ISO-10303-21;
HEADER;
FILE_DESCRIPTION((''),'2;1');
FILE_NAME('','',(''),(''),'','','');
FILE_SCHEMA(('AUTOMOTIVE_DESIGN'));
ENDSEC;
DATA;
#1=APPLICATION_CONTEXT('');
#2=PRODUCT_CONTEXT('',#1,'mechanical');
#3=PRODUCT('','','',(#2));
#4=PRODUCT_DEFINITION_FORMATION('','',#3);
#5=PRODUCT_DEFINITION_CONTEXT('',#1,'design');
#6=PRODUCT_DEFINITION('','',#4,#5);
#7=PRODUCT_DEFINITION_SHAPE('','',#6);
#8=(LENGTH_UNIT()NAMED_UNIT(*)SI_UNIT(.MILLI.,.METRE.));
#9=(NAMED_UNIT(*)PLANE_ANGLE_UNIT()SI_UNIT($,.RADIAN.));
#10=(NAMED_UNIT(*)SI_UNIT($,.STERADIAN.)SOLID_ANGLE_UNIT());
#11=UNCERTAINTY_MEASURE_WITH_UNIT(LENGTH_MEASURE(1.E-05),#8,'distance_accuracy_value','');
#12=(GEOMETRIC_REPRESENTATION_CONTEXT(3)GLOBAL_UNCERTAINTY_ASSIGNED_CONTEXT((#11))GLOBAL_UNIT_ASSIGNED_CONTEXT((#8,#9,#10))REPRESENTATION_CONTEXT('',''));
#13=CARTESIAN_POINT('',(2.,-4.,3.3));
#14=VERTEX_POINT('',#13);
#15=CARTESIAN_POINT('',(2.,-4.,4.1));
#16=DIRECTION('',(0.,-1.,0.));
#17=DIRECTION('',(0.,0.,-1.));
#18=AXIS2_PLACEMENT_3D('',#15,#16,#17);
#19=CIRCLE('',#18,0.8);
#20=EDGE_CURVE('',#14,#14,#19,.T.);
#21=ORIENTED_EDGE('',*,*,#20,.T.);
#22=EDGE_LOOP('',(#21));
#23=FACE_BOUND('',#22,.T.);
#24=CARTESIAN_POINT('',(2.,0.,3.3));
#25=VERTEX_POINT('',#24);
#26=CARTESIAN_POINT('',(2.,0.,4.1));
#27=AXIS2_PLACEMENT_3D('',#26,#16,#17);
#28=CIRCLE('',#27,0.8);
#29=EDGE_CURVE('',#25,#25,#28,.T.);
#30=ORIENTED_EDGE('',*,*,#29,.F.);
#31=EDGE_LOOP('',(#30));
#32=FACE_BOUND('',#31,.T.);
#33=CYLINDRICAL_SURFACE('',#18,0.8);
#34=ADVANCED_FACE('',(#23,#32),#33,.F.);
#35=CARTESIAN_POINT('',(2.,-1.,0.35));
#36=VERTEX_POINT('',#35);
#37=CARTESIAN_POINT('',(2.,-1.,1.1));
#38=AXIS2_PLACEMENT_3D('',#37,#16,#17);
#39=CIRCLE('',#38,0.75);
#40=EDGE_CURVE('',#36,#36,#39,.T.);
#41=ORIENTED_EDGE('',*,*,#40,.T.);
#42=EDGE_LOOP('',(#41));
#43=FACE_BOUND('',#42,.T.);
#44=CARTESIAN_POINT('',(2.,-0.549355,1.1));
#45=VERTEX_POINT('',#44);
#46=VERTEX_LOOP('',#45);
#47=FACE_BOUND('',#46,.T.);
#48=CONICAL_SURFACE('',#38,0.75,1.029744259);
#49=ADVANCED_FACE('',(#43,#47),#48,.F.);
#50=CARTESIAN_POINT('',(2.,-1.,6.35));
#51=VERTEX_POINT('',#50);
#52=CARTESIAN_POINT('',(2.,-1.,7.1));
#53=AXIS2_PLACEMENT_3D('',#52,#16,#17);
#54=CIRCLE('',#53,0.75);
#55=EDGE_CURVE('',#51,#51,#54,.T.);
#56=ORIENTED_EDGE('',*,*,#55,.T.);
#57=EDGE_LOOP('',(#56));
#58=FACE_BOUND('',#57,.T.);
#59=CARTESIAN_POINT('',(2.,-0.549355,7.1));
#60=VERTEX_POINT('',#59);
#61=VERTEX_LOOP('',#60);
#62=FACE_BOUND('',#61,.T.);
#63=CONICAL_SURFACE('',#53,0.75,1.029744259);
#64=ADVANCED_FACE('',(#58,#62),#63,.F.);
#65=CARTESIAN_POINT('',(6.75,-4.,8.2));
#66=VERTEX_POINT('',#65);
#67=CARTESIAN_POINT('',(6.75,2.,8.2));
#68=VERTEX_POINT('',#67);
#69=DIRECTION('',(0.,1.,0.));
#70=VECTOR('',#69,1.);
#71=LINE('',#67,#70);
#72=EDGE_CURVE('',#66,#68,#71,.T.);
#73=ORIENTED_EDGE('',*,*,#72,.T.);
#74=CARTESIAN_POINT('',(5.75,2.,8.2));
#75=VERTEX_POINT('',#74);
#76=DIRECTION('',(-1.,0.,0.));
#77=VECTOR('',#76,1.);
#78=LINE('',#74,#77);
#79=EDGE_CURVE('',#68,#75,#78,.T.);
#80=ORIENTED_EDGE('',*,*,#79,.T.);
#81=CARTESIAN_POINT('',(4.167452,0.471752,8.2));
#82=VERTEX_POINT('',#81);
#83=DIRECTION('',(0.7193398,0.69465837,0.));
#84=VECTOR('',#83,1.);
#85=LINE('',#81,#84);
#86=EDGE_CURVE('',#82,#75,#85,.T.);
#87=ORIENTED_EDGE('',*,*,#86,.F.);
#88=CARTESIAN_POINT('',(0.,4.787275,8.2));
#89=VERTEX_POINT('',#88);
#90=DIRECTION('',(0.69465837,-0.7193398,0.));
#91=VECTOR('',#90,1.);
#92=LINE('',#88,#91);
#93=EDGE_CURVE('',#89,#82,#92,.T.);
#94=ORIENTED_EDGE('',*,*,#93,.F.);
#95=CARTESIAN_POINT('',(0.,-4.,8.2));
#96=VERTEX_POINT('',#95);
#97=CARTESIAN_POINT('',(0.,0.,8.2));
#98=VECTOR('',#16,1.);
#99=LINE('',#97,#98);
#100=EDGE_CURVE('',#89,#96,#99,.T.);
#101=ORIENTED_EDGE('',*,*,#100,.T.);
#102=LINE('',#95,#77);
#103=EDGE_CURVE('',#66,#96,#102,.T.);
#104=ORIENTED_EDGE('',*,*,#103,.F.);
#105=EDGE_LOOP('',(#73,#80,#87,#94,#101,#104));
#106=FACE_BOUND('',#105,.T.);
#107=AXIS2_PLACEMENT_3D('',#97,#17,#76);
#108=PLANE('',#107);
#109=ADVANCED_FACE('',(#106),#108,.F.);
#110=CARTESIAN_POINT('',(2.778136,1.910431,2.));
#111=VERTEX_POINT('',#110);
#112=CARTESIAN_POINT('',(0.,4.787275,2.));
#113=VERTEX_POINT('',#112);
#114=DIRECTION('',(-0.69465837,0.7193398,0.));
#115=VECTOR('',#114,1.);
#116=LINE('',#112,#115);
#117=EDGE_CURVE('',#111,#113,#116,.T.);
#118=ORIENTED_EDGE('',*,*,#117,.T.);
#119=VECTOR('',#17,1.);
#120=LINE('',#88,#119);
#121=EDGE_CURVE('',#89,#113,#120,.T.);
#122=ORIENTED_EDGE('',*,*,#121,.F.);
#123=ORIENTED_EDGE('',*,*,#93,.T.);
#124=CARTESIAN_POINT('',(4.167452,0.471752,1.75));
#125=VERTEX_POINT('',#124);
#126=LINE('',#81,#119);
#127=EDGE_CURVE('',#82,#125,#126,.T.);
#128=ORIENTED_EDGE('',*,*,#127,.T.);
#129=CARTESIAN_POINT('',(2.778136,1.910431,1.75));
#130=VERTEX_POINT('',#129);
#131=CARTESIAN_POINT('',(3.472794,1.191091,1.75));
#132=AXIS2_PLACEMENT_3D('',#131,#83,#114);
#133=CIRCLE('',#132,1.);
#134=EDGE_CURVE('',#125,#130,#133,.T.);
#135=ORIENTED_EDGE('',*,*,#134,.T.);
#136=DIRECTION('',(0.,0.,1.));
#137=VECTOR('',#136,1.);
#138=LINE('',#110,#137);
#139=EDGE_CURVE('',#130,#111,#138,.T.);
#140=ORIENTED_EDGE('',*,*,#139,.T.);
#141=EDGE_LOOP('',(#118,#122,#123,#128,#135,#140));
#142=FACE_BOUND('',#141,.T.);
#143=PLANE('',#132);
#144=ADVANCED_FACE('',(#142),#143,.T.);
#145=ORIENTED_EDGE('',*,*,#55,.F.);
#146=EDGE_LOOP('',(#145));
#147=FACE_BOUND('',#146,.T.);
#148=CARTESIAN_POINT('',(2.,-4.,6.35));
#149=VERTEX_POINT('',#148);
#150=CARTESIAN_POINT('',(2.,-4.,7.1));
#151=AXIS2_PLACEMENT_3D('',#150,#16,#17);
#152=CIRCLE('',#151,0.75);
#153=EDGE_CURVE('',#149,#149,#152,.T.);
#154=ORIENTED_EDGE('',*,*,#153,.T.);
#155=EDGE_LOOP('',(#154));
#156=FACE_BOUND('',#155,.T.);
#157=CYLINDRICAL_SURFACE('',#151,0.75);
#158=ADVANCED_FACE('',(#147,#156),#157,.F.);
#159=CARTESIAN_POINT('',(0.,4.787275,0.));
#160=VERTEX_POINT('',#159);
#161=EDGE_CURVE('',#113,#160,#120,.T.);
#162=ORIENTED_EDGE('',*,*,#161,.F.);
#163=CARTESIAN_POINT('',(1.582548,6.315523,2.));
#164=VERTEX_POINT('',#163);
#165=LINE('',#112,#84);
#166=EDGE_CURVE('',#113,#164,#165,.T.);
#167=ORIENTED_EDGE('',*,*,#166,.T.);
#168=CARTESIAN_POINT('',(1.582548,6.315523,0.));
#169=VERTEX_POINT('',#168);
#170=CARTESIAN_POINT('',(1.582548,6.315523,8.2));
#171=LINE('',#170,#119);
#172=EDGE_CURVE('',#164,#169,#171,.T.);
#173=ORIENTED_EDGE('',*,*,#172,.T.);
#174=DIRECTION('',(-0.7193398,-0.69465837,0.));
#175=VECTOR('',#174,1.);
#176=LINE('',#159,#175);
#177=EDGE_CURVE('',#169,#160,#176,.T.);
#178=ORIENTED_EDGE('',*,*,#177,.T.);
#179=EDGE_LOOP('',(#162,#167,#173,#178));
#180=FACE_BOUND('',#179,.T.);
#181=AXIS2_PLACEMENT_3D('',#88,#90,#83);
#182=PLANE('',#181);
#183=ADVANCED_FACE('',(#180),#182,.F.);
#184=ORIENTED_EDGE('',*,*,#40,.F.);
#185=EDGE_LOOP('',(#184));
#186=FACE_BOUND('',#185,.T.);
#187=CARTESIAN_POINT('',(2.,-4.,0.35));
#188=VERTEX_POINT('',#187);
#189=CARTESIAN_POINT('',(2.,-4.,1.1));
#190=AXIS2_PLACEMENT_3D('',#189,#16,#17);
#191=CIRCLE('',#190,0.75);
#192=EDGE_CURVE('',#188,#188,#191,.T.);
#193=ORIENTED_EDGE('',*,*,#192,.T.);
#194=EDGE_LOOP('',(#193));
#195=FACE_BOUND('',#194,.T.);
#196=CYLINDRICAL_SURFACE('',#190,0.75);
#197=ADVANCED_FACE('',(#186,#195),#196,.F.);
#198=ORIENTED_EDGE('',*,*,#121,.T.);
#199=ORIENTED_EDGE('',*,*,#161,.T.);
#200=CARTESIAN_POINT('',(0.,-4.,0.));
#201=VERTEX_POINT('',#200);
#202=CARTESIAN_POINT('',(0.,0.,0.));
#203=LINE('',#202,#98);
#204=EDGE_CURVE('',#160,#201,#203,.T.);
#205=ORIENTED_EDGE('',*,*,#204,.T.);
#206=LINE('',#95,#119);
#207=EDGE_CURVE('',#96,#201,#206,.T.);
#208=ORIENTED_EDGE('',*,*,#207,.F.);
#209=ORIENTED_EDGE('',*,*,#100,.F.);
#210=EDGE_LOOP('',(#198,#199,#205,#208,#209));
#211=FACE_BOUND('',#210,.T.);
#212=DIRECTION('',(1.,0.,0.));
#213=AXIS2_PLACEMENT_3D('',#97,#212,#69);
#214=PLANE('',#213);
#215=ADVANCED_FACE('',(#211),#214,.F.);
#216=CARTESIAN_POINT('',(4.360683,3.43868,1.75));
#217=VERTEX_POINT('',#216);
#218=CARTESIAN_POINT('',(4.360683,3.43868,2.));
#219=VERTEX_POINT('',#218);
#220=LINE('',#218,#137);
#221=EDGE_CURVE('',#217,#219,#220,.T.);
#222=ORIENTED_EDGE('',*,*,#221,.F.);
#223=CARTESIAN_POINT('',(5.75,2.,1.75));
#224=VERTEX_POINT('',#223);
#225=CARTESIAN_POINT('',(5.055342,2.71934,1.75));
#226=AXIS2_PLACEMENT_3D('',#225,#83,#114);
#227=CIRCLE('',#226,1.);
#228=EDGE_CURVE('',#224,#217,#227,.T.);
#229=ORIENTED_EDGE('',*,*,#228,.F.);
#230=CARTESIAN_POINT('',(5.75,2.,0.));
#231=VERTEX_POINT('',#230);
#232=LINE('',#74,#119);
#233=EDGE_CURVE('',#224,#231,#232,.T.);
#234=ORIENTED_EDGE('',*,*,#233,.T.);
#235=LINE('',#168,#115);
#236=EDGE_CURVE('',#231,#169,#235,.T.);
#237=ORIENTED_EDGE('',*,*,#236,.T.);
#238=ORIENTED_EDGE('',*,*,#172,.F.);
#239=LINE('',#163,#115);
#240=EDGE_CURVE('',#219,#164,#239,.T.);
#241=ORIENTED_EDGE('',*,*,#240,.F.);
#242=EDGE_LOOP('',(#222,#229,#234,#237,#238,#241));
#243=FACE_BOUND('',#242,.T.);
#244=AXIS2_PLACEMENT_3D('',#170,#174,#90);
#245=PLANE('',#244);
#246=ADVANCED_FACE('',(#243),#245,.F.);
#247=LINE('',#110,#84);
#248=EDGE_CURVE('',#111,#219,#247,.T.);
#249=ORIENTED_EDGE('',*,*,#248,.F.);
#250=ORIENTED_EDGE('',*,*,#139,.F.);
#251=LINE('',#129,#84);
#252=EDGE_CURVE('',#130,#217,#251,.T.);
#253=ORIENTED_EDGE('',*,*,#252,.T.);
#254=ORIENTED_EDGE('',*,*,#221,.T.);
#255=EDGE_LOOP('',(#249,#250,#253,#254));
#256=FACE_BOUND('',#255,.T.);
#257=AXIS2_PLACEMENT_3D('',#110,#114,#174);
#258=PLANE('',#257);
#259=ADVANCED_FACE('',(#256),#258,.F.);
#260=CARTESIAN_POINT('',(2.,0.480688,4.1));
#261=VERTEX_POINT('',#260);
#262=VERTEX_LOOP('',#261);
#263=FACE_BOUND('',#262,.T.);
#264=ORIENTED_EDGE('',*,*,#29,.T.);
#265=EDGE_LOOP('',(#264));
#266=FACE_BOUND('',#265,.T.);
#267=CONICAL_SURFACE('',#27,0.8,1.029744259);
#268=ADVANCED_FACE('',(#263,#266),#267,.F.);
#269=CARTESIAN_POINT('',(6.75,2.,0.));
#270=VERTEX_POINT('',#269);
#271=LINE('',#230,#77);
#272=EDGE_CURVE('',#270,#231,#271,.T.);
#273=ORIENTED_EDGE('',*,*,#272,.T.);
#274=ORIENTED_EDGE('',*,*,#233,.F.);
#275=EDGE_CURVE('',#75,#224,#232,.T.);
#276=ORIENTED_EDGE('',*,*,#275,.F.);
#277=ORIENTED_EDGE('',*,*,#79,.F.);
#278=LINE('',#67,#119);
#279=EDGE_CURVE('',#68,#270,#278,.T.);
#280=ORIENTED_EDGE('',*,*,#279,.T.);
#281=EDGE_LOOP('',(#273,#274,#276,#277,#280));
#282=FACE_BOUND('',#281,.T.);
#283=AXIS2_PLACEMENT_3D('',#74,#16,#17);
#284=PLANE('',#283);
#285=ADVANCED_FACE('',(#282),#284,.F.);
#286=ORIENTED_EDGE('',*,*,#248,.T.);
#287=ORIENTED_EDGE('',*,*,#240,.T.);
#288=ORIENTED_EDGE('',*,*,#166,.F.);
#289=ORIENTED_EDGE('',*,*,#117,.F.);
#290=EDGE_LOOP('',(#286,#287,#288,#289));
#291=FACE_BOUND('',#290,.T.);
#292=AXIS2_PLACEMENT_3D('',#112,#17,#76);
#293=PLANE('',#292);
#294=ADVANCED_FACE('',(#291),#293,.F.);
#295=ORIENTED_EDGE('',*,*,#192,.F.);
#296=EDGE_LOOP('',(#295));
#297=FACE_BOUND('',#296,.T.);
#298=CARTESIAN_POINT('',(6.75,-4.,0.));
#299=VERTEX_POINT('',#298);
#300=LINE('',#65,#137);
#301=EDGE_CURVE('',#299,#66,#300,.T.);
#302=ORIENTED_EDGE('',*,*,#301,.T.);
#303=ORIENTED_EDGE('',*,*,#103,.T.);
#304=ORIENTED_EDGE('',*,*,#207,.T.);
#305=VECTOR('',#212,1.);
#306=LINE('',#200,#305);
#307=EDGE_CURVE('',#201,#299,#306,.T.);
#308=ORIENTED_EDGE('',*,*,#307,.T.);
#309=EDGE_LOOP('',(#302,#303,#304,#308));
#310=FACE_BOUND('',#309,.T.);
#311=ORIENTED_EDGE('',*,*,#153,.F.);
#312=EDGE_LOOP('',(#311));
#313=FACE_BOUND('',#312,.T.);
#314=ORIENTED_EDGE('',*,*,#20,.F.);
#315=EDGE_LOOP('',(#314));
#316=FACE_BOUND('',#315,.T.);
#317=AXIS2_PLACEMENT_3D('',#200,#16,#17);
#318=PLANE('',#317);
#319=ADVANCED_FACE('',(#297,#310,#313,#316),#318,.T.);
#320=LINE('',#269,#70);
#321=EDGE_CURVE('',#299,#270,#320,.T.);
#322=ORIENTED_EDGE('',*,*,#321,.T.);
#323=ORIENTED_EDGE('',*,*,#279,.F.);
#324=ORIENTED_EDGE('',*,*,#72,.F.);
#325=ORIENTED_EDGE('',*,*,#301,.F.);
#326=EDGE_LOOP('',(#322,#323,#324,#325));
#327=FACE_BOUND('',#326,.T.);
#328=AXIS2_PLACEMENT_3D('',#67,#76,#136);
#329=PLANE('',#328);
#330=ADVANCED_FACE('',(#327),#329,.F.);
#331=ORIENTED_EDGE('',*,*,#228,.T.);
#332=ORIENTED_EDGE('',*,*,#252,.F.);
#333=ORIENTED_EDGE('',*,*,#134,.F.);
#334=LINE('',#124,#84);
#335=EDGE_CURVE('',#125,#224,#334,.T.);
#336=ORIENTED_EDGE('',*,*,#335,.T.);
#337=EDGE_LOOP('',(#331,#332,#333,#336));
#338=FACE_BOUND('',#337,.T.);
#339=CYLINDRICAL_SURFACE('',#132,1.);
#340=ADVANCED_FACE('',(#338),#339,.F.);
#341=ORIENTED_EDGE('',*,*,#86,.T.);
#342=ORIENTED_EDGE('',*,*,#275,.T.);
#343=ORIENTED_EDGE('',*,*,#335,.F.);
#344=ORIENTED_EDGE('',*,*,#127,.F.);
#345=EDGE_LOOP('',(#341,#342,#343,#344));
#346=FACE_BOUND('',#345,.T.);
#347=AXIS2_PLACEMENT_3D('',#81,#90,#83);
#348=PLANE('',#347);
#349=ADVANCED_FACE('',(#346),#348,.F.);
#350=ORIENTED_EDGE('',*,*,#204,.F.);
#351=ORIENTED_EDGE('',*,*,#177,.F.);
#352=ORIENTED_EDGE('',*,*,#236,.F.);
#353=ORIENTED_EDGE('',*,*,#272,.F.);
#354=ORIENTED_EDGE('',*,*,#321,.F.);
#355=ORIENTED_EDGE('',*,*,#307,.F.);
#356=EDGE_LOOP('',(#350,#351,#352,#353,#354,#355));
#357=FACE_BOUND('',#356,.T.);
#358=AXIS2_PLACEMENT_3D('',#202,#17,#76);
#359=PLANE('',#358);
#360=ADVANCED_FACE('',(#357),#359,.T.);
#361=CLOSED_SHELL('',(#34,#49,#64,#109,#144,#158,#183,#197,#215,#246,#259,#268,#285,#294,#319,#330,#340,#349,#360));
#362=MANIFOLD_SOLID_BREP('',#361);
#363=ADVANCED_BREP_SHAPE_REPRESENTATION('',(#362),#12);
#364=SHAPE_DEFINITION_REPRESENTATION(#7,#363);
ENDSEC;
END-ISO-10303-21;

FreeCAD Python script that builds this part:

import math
import FreeCAD as App
import Part
import Sketcher

V = App.Vector
Q = App.Units.Quantity

doc = App.newDocument("Part")
body = doc.addObject("PartDesign::Body", "Body")

# Sketch on XY plane
sketch1 = doc.addObject("Sketcher::SketchObject", "Sketch")
body.addObject(sketch1)
sketch1.AttachmentSupport = (doc.XY_Plane, [""])
sketch1.MapMode = "FlatFace"
sketch1.addGeometry(Part.LineSegment(V(0, 4.787275, 0), V(0, 0, 0)), False)
sketch1.addGeometry(Part.LineSegment(V(0, 0, 0), V(6.75, 0, 0)), False)
sketch1.addGeometry(Part.LineSegment(V(6.75, 0, 0), V(6.75, 2, 0)), False)
sketch1.addGeometry(Part.LineSegment(V(6.75, 2, 0), V(5.75, 2, 0)), False)
sketch1.addGeometry(Part.LineSegment(V(5.75, 2, 0), V(1.582548, 6.315523, 0)), False)
sketch1.addGeometry(Part.LineSegment(V(1.582548, 6.315523, 0), V(0, 4.787275, 0)), False)
sketch1.addConstraint(Sketcher.Constraint("Coincident", 0, 2, 1, 1))
sketch1.addConstraint(Sketcher.Constraint("Coincident", 1, 2, 2, 1))
sketch1.addConstraint(Sketcher.Constraint("Coincident", 2, 2, 3, 1))
sketch1.addConstraint(Sketcher.Constraint("Coincident", 3, 2, 4, 1))
sketch1.addConstraint(Sketcher.Constraint("Coincident", 4, 2, 5, 1))
sketch1.addConstraint(Sketcher.Constraint("Coincident", 5, 2, 0, 1))
sketch1.addConstraint(Sketcher.Constraint("Vertical", 0))
sketch1.addConstraint(Sketcher.Constraint("Horizontal", 1))
sketch1.addConstraint(Sketcher.Constraint("Vertical", 2))
sketch1.addConstraint(Sketcher.Constraint("Horizontal", 3))
sketch1.addConstraint(Sketcher.Constraint("Coincident", 0, 2, -1, 1))
sketch1.addConstraint(Sketcher.Constraint("Perpendicular", 4, 5))
sketch1.addConstraint(Sketcher.Constraint("DistanceX", 3, 2, 3, 1, 1.0))
sketch1.addConstraint(Sketcher.Constraint("DistanceY", 2, 1, 2, 2, 2.0))
sketch1.addConstraint(Sketcher.Constraint("Angle", 4, Q("134 deg")))
sketch1.addConstraint(Sketcher.Constraint("Distance", 5, 2.2))
sketch1.addConstraint(Sketcher.Constraint("DistanceX", 1, 1, 1, 2, 6.75))
pad1 = doc.addObject("PartDesign::Pad", "Pad")
body.addObject(pad1)
pad1.Profile = sketch1
pad1.Length = 8.2

# Sketch on an angled plane
sketch2 = doc.addObject("Sketcher::SketchObject", "Sketch001")
body.addObject(sketch2)
sketch2.Placement = App.Placement(V(3.974727, 3.838349, 0), App.Rotation(V(0, 0, -1), V(-0.69465837, 0.7193398, 0), V(0.7193398, 0.69465837, 0), "ZXY"))
sketch2.addGeometry(Part.LineSegment(V(-2, 3.443677, 0), V(-8.2, 3.443677, 0)), False)
sketch2.addGeometry(Part.LineSegment(V(-8.2, 3.443677, 0), V(-8.2, -2.555606, 0)), False)
sketch2.addGeometry(Part.LineSegment(V(-8.2, -2.555606, 0), V(-1.75, -2.555606, 0)), False)
sketch2.addGeometry(Part.ArcOfCircle(Part.Circle(V(-1.75, -1.555606, 0), V(0, 0, 1), 1), math.radians(-90), math.radians(90)), False)
sketch2.addGeometry(Part.LineSegment(V(-1.75, -0.555606, 0), V(-2, -0.555606, 0)), False)
sketch2.addGeometry(Part.LineSegment(V(-2, -0.555606, 0), V(-2, 3.443677, 0)), False)
sketch2.addConstraint(Sketcher.Constraint("Coincident", 0, 2, 1, 1))
sketch2.addConstraint(Sketcher.Constraint("Coincident", 1, 2, 2, 1))
sketch2.addConstraint(Sketcher.Constraint("Tangent", 2, 2, 3, 1))
sketch2.addConstraint(Sketcher.Constraint("Tangent", 3, 2, 4, 1))
sketch2.addConstraint(Sketcher.Constraint("Coincident", 4, 2, 5, 1))
sketch2.addConstraint(Sketcher.Constraint("Coincident", 5, 2, 0, 1))
sketch2.addConstraint(Sketcher.Constraint("Horizontal", 0))
sketch2.addConstraint(Sketcher.Constraint("Vertical", 1))
sketch2.addConstraint(Sketcher.Constraint("Horizontal", 2))
sketch2.addConstraint(Sketcher.Constraint("Horizontal", 4))
sketch2.addConstraint(Sketcher.Constraint("Vertical", 5))
sketch2.addConstraint(Sketcher.Constraint("Radius", 3, 1.0))
sketch2.addConstraint(Sketcher.Constraint("DistanceX", 0, 2, 0, 1, 6.2))
sketch2.addConstraint(Sketcher.Constraint("DistanceX", 4, 2, -1, 1, 2.0))
sketch2.addConstraint(Sketcher.Constraint("DistanceX", 2, 1, 2, 2, 6.45))
sketch2.addConstraint(Sketcher.Constraint("DistanceY", 1, 2, 1, 1, 5.999283))
sketch2.addConstraint(Sketcher.Constraint("DistanceY", 3, 3, -1, 1, 1.555606))
pocket1 = doc.addObject("PartDesign::Pocket", "Pocket")
body.addObject(pocket1)
pocket1.Profile = sketch2
pocket1.Length = 2.2

# Sketch on XZ plane
sketch3 = doc.addObject("Sketcher::SketchObject", "Sketch002")
body.addObject(sketch3)
sketch3.AttachmentSupport = (doc.XZ_Plane, [""])
sketch3.MapMode = "FlatFace"
sketch3.addGeometry(Part.LineSegment(V(0, 8.2, 0), V(0, 0, 0)), False)
sketch3.addGeometry(Part.LineSegment(V(0, 0, 0), V(6.75, 0, 0)), False)
sketch3.addGeometry(Part.LineSegment(V(6.75, 0, 0), V(6.75, 8.2, 0)), False)
sketch3.addGeometry(Part.LineSegment(V(6.75, 8.2, 0), V(0, 8.2, 0)), False)
sketch3.addConstraint(Sketcher.Constraint("Coincident", 0, 2, 1, 1))
sketch3.addConstraint(Sketcher.Constraint("Coincident", 1, 2, 2, 1))
sketch3.addConstraint(Sketcher.Constraint("Coincident", 2, 2, 3, 1))
sketch3.addConstraint(Sketcher.Constraint("Coincident", 3, 2, 0, 1))
sketch3.addConstraint(Sketcher.Constraint("Vertical", 0))
sketch3.addConstraint(Sketcher.Constraint("Horizontal", 1))
sketch3.addConstraint(Sketcher.Constraint("Vertical", 2))
sketch3.addConstraint(Sketcher.Constraint("Horizontal", 3))
sketch3.addConstraint(Sketcher.Constraint("Coincident", 0, 2, -1, 1))
sketch3.addConstraint(Sketcher.Constraint("DistanceY", 0, 2, 0, 1, 8.2))
sketch3.addConstraint(Sketcher.Constraint("DistanceX", 1, 1, 1, 2, 6.75))
pad2 = doc.addObject("PartDesign::Pad", "Pad001")
body.addObject(pad2)
pad2.Profile = sketch3
pad2.Length = 4

# Sketch on XZ plane
sketch4 = doc.addObject("Sketcher::SketchObject", "Sketch003")
body.addObject(sketch4)
sketch4.AttachmentSupport = (doc.XZ_Plane, [""])
sketch4.MapMode = "FlatFace"
sketch4.AttachmentOffset = App.Placement(V(0, 0, 4), App.Rotation())
sketch4.addGeometry(Part.Circle(V(2, 7.1, 0), V(0, 0, 1), 0.75), False)
sketch4.addGeometry(Part.Circle(V(2, 1.1, 0), V(0, 0, 1), 0.75), False)
sketch4.addConstraint(Sketcher.Constraint("Equal", 0, 1))
sketch4.addConstraint(Sketcher.Constraint("Vertical", 0, 3, 1, 3))
sketch4.addConstraint(Sketcher.Constraint("Diameter", 0, 1.5))
sketch4.addConstraint(Sketcher.Constraint("DistanceX", -1, 1, 0, 3, 2.0))
sketch4.addConstraint(Sketcher.Constraint("DistanceY", 1, 3, 0, 3, 6.0))
sketch4.addConstraint(Sketcher.Constraint("DistanceY", -1, 1, 0, 3, 7.1))
doc.recompute()
hole = doc.addObject("PartDesign::Hole", "Hole")
body.addObject(hole)
hole.Profile = sketch4
hole.ThreadType = "None"
hole.Diameter = 1.5
hole.DepthType = "Dimension"
hole.Depth = 3
hole.DrillPoint = "Angled"
hole.DrillPointAngle = 118

# Sketch on XZ plane
sketch5 = doc.addObject("Sketcher::SketchObject", "Sketch004")
body.addObject(sketch5)
sketch5.AttachmentSupport = (doc.XZ_Plane, [""])
sketch5.MapMode = "FlatFace"
sketch5.AttachmentOffset = App.Placement(V(0, 0, 4), App.Rotation())
sketch5.addGeometry(Part.Circle(V(2, 4.1, 0), V(0, 0, 1), 0.8), False)
sketch5.addConstraint(Sketcher.Constraint("Diameter", 0, 1.6))
sketch5.addConstraint(Sketcher.Constraint("DistanceX", -1, 1, 0, 3, 2.0))
sketch5.addConstraint(Sketcher.Constraint("DistanceY", -1, 1, 0, 3, 4.1))
doc.recompute()
hole2 = doc.addObject("PartDesign::Hole", "Hole001")
body.addObject(hole2)
hole2.Profile = sketch5
hole2.ThreadType = "None"
hole2.Diameter = 1.6
hole2.DepthType = "Dimension"
hole2.Depth = 4
hole2.DrillPoint = "Angled"
hole2.DrillPointAngle = 118

doc.recompute()
